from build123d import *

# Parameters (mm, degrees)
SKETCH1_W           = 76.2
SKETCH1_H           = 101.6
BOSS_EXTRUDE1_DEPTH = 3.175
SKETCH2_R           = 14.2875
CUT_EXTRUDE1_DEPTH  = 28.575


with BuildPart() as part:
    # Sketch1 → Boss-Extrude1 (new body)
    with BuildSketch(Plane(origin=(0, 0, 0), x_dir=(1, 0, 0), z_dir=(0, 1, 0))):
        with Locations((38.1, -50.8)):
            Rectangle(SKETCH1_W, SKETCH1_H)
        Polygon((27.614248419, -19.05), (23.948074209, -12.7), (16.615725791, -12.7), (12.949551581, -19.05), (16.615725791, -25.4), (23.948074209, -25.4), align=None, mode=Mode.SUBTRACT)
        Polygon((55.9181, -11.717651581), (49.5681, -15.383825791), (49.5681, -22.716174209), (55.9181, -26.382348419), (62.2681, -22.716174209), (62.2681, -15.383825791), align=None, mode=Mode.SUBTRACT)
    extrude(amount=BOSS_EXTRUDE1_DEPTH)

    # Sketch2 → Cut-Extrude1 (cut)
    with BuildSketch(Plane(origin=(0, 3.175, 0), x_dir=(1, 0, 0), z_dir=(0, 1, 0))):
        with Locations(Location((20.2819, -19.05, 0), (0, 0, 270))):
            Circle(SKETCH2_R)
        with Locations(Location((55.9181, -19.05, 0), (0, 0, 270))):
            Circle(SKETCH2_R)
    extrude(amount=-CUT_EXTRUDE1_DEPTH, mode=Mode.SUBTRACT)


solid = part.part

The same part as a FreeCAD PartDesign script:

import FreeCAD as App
import Part
import Sketcher
from FreeCAD import Vector
Q = App.Units.Quantity


def add_polygon(sketch, points):
    """Adds a closed chain of lines whose ends are joined by coincident constraints."""
    first, n = sketch.GeometryCount, len(points)
    for a, b in zip(points, points[1:] + points[:1]):
        sketch.addGeometry(Part.LineSegment(App.Vector(*a, 0), App.Vector(*b, 0)), False)
    for i in range(n):
        sketch.addConstraint(Sketcher.Constraint("Coincident", first + i, 2, first + (i + 1) % n, 1))

doc = App.newDocument("Part")
body = doc.addObject("PartDesign::Body", "Body")

# Sketch on XZ plane
sketch1 = body.newObject("Sketcher::SketchObject", "Sketch")
sketch1.AttachmentSupport = (doc.getObject("XZ_Plane"), [""])
sketch1.MapMode = "FlatFace"
add_polygon(sketch1, [(0, 0), (0, 101.6), (76.2, 101.6), (76.2, 0)])  # lines 0-3
add_polygon(sketch1, [(23.948074, 12.7), (27.614248, 19.05), (23.948074, 25.4), (16.615726, 25.4), (12.949552, 19.05), (16.615726, 12.7)])  # lines 4-9
add_polygon(sketch1, [(49.5681, 15.383826), (55.9181, 11.717652), (62.2681, 15.383826), (62.2681, 22.716174), (55.9181, 26.382348), (49.5681, 22.716174)])  # lines 10-15
sketch1.addConstraint(Sketcher.Constraint("Vertical", 0))
sketch1.addConstraint(Sketcher.Constraint("Horizontal", 1))
sketch1.addConstraint(Sketcher.Constraint("Vertical", 2))
sketch1.addConstraint(Sketcher.Constraint("Horizontal", 3))
sketch1.addConstraint(Sketcher.Constraint("Horizontal", 6))
sketch1.addConstraint(Sketcher.Constraint("Horizontal", 9))
sketch1.addConstraint(Sketcher.Constraint("Vertical", 12))
sketch1.addConstraint(Sketcher.Constraint("Vertical", 15))
sketch1.addConstraint(Sketcher.Constraint("Coincident", 3, 2, -1, 1))
sketch1.addConstraint(Sketcher.Constraint("Parallel", 4, 7))
sketch1.addConstraint(Sketcher.Constraint("Parallel", 5, 8))
sketch1.addConstraint(Sketcher.Constraint("Perpendicular", 7, 10))
sketch1.addConstraint(Sketcher.Constraint("Perpendicular", 8, 11))
sketch1.addConstraint(Sketcher.Constraint("Parallel", 10, 13))
sketch1.addConstraint(Sketcher.Constraint("Parallel", 11, 14))
sketch1.addConstraint(Sketcher.Constraint("Horizontal", 4, 2, 7, 2))
sketch1.addConstraint(Sketcher.Constraint("Horizontal", 12, 2, 14, 2))
sketch1.addConstraint(Sketcher.Constraint("Horizontal", 11, 2, 15, 2))
sketch1.addConstraint(Sketcher.Constraint("Vertical", 6, 2, 8, 2))
sketch1.addConstraint(Sketcher.Constraint("Vertical", 5, 2, 9, 2))
sketch1.addConstraint(Sketcher.Constraint("Equal", 9, 12))
sketch1.addConstraint(Sketcher.Constraint("Equal", 8, 10))
sketch1.addConstraint(Sketcher.Constraint("DistanceX", 1, 1, 1, 2, Q("3 in")))
sketch1.addConstraint(Sketcher.Constraint("DistanceY", 0, 1, 0, 2, Q("4 in")))
sketch1.addConstraint(Sketcher.Constraint("DistanceY", -1, 1, 5, 2, Q("1 in")))
sketch1.addConstraint(Sketcher.Constraint("Angle", 4, Q("60 deg")))
sketch1.addConstraint(Sketcher.Constraint("DistanceY", -1, 1, 8, 2, Q("0.5 in")))
sketch1.addConstraint(Sketcher.Constraint("DistanceX", -1, 1, 10, 2, Q("2.2015 in")))
sketch1.addConstraint(Sketcher.Constraint("DistanceX", 6, 2, 6, 1, 7.332348))
sketch1.addConstraint(Sketcher.Constraint("DistanceX", -1, 1, 4, 2, 27.614248))
sketch1.addConstraint(Sketcher.Constraint("DistanceY", -1, 1, 10, 2, 11.717652))
pad1 = body.newObject("PartDesign::Pad", "Pad")
pad1.Profile = sketch1
pad1.Length = Q("0.125 in")
pad1.Reversed = True

# Sketch on XZ plane
sketch2 = body.newObject("Sketcher::SketchObject", "Sketch001")
sketch2.AttachmentSupport = (doc.getObject("XZ_Plane"), [""])
sketch2.MapMode = "FlatFace"
sketch2.AttachmentOffset = App.Placement(Vector(0, 0, -0.125 * 25.4), App.Rotation())
sketch2.addGeometry(Part.Circle(Vector(20.2819, 19.05, 0), Vector(0, 0, 1), 14.2875), False)
sketch2.addGeometry(Part.Circle(Vector(55.9181, 19.05, 0), Vector(0, 0, 1), 14.2875), False)
sketch2.addConstraint(Sketcher.Constraint("Equal", 0, 1))
sketch2.addConstraint(Sketcher.Constraint("Horizontal", 0, 3, 1, 3))
sketch2.addConstraint(Sketcher.Constraint("Diameter", 0, Q("1.125 in")))
sketch2.addConstraint(Sketcher.Constraint("DistanceY", -1, 1, 0, 3, Q("0.75 in")))
sketch2.addConstraint(Sketcher.Constraint("DistanceX", 0, 3, 1, 3, Q("1.403 in")))
sketch2.addConstraint(Sketcher.Constraint("DistanceX", -1, 1, 0, 3, Q("0.7985 in")))
pocket1 = body.newObject("PartDesign::Pocket", "Pocket")
pocket1.Profile = sketch2
pocket1.Length = Q("1.125 in")
pocket1.Reversed = True

doc.recompute()
